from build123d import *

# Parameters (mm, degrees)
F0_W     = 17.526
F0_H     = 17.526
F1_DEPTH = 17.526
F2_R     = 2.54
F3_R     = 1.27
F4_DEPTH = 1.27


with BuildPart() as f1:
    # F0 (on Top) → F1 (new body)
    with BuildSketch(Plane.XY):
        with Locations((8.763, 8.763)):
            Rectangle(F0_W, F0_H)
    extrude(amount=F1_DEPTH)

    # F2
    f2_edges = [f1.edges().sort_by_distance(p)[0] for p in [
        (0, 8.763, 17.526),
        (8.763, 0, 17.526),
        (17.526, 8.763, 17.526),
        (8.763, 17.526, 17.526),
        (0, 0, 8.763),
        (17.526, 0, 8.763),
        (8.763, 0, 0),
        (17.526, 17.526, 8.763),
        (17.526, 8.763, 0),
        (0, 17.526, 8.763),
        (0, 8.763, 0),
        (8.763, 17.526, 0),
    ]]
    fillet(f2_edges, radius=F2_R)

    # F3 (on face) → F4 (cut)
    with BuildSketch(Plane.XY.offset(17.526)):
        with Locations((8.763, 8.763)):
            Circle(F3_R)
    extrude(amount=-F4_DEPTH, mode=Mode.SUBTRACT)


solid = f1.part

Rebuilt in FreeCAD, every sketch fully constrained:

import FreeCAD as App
import Part
import Sketcher
Q = App.Units.Quantity

doc = App.newDocument("Part")
params = doc.addObject("Spreadsheet::Sheet", "Params")
for row, (alias, value) in enumerate([
    ("sketch1_width", "0.69 in"),
    ("pad1_length", "0.69 in"),
    ("fillet_radius", "0.1 in"),
    ("sketch2_diameter", "0.1 in"),
    ("pocket1_length", "0.05 in"),
], start=1):
    params.set(f"A{row}", alias)
    params.set(f"B{row}", "=" + value)
    params.setAlias(f"B{row}", alias)

body = doc.addObject("PartDesign::Body", "Body")

# Sketch on XY plane
sketch1 = body.newObject("Sketcher::SketchObject", "Sketch")
sketch1.AttachmentSupport = (doc.getObject("XY_Plane"), [""])
sketch1.MapMode = "FlatFace"
sketch1.addGeometry([
    Part.LineSegment(App.Vector(0, 18, 0), App.Vector(0, 0, 0)),
    Part.LineSegment(App.Vector(0, 0, 0), App.Vector(18, 0, 0)),
    Part.LineSegment(App.Vector(18, 0, 0), App.Vector(18, 18, 0)),
    Part.LineSegment(App.Vector(18, 18, 0), App.Vector(0, 18, 0)),
], False)
sketch1.addConstraint([
    Sketcher.Constraint("Coincident", 0, 2, 1, 1),
    Sketcher.Constraint("Coincident", 1, 2, 2, 1),
    Sketcher.Constraint("Coincident", 2, 2, 3, 1),
    Sketcher.Constraint("Coincident", 3, 2, 0, 1),
    Sketcher.Constraint("Vertical", 0),
    Sketcher.Constraint("Horizontal", 1),
    Sketcher.Constraint("Vertical", 2),
    Sketcher.Constraint("Horizontal", 3),
    Sketcher.Constraint("Coincident", 0, 2, -1, 1),
    Sketcher.Constraint("Equal", 3, 0),
    Sketcher.Constraint("DistanceX", 1, 1, 1, 2, Q("0.69 in")),
])
sketch1.setExpression("Constraints[10]", "Params.sketch1_width")
pad1 = body.newObject("PartDesign::Pad", "Pad")
pad1.Profile = sketch1
pad1.setExpression("Length", "Params.pad1_length")
doc.recompute()

fillet = body.newObject("PartDesign::Fillet", "Fillet")
fillet.Base = (pad1, ["Edge1"])
fillet.UseAllEdges = True
fillet.setExpression("Radius", "Params.fillet_radius")

# Sketch on XY plane
sketch2 = body.newObject("Sketcher::SketchObject", "Sketch001")
sketch2.AttachmentSupport = (doc.getObject("XY_Plane"), [""])
sketch2.MapMode = "FlatFace"
sketch2.AttachmentOffset = App.Placement(App.Vector(0, 0, 0.69 * 25.4), App.Rotation())
sketch2.addGeometry(Part.Circle(App.Vector(8.8, 8.8, 0), App.Vector(0, 0, 1), 1.3), False)
sketch2.addConstraint([
    Sketcher.Constraint("Diameter", 0, Q("0.1 in")),
    Sketcher.Constraint("DistanceX", -1, 1, 0, 3, Q("0.345 in")),
    Sketcher.Constraint("DistanceY", -1, 1, 0, 3, Q("0.345 in")),
])
sketch2.setExpression("Constraints[0]", "Params.sketch2_diameter")
pocket1 = body.newObject("PartDesign::Pocket", "Pocket")
pocket1.Profile = sketch2
pocket1.setExpression("Length", "Params.pocket1_length")

doc.recompute()
